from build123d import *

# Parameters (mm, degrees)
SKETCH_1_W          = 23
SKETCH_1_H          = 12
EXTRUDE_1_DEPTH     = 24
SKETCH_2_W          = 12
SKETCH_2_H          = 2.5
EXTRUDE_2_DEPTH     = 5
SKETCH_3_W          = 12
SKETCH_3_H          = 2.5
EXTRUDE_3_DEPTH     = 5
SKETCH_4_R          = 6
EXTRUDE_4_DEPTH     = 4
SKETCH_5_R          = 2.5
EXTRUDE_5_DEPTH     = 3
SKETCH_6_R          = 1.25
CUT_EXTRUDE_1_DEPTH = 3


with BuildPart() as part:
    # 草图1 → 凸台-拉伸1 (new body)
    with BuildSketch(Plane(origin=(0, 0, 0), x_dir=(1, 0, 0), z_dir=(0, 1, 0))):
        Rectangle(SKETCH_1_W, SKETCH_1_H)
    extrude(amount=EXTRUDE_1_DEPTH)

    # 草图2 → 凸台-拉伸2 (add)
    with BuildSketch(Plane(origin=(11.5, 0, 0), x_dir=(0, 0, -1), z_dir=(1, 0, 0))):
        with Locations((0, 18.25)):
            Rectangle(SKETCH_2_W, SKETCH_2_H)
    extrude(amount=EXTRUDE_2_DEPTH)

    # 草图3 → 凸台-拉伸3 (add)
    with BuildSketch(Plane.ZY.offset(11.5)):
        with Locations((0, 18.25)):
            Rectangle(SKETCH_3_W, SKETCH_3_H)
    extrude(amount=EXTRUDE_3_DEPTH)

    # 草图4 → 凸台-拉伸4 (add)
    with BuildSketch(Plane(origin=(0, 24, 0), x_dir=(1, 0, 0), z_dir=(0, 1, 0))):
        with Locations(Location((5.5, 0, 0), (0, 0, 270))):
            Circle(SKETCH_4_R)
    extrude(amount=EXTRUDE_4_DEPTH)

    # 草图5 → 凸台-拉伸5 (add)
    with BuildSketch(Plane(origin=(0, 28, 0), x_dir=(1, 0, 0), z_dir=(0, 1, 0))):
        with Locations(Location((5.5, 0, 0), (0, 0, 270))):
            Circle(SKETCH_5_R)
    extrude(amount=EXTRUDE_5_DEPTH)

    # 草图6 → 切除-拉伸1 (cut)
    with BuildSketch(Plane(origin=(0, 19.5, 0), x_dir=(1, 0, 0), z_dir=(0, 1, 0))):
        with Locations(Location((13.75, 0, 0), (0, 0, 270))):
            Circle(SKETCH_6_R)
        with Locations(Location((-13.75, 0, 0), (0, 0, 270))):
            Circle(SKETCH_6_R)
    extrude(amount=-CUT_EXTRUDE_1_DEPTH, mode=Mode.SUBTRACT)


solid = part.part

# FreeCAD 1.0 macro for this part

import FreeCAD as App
import Part
import Sketcher
Q = App.Units.Quantity


def add_polygon(sketch, points):
    """Adds a closed chain of lines whose ends are joined by coincident constraints."""
    first, n = sketch.GeometryCount, len(points)
    for a, b in zip(points, points[1:] + points[:1]):
        sketch.addGeometry(Part.LineSegment(App.Vector(*a, 0), App.Vector(*b, 0)), False)
    for i in range(n):
        sketch.addConstraint(Sketcher.Constraint("Coincident", first + i, 2, first + (i + 1) % n, 1))

doc = App.newDocument("Part")
body = doc.addObject("PartDesign::Body", "Body")

sketch1 = doc.addObject("Sketcher::SketchObject", "Sketch")
body.addObject(sketch1)
sketch1.AttachmentSupport = (doc.XZ_Plane, [""])
sketch1.MapMode = "FlatFace"
add_polygon(sketch1, [(-11.5, -6), (-11.5, 6), (11.5, 6), (11.5, -6)])
sketch1.addConstraint(Sketcher.Constraint("Vertical", 0))
sketch1.addConstraint(Sketcher.Constraint("Horizontal", 1))
sketch1.addConstraint(Sketcher.Constraint("Vertical", 2))
sketch1.addConstraint(Sketcher.Constraint("Horizontal", 3))
sketch1.addConstraint(Sketcher.Constraint("Symmetric", 0, 2, 2, 2, -1, 1))
sketch1.addConstraint(Sketcher.Constraint("DistanceX", 1, 1, 1, 2, Q("23 mm")))
sketch1.addConstraint(Sketcher.Constraint("DistanceY", 0, 1, 0, 2, Q("12 mm")))
pad1 = doc.addObject("PartDesign::Pad", "Pad")
body.addObject(pad1)
pad1.Profile = sketch1
pad1.Length = 24
pad1.Reversed = True

sketch2 = doc.addObject("Sketcher::SketchObject", "Sketch001")
body.addObject(sketch2)
sketch2.AttachmentSupport = (doc.YZ_Plane, [""])
sketch2.MapMode = "FlatFace"
sketch2.AttachmentOffset = App.Placement(App.Vector(0, 0, 11.5), App.Rotation())
add_polygon(sketch2, [(19.5, 6), (17, 6), (17, -6), (19.5, -6)])
sketch2.addConstraint(Sketcher.Constraint("Horizontal", 0))
sketch2.addConstraint(Sketcher.Constraint("Vertical", 1))
sketch2.addConstraint(Sketcher.Constraint("Horizontal", 2))
sketch2.addConstraint(Sketcher.Constraint("Vertical", 3))
sketch2.addConstraint(Sketcher.Constraint("DistanceY", 1, 2, 1, 1, Q("12 mm")))
sketch2.addConstraint(Sketcher.Constraint("DistanceX", 0, 2, 0, 1, Q("2.5 mm")))
sketch2.addConstraint(Sketcher.Constraint("DistanceX", -1, 1, 0, 2, Q("17 mm")))
sketch2.addConstraint(Sketcher.Constraint("DistanceY", -1, 1, 0, 2, Q("6 mm")))
pad2 = doc.addObject("PartDesign::Pad", "Pad001")
body.addObject(pad2)
pad2.Profile = sketch2
pad2.Length = 5

sketch3 = doc.addObject("Sketcher::SketchObject", "Sketch002")
body.addObject(sketch3)
sketch3.AttachmentSupport = (doc.YZ_Plane, [""])
sketch3.MapMode = "FlatFace"
sketch3.AttachmentOffset = App.Placement(App.Vector(0, 0, -11.5), App.Rotation())
add_polygon(sketch3, [(19.5, -6), (17, -6), (17, 6), (19.5, 6)])
sketch3.addConstraint(Sketcher.Constraint("Horizontal", 0))
sketch3.addConstraint(Sketcher.Constraint("Vertical", 1))
sketch3.addConstraint(Sketcher.Constraint("Horizontal", 2))
sketch3.addConstraint(Sketcher.Constraint("Vertical", 3))
sketch3.addConstraint(Sketcher.Constraint("DistanceY", 1, 1, 1, 2, Q("12 mm")))
sketch3.addConstraint(Sketcher.Constraint("DistanceX", 0, 2, 0, 1, Q("2.5 mm")))
sketch3.addConstraint(Sketcher.Constraint("DistanceX", -1, 1, 0, 2, Q("17 mm")))
sketch3.addConstraint(Sketcher.Constraint("DistanceY", 0, 2, -1, 1, Q("6 mm")))
pad3 = doc.addObject("PartDesign::Pad", "Pad002")
body.addObject(pad3)
pad3.Profile = sketch3
pad3.Length = 5
pad3.Reversed = True

sketch4 = doc.addObject("Sketcher::SketchObject", "Sketch003")
body.addObject(sketch4)
sketch4.AttachmentSupport = (doc.XZ_Plane, [""])
sketch4.MapMode = "FlatFace"
sketch4.AttachmentOffset = App.Placement(App.Vector(0, 0, -24), App.Rotation())
sketch4.addGeometry(Part.Circle(App.Vector(5.5, 0, 0), App.Vector(0, 0, 1), 6), False)
sketch4.addConstraint(Sketcher.Constraint("PointOnObject", 0, 3, -1))
sketch4.addConstraint(Sketcher.Constraint("Diameter", 0, Q("12 mm")))
sketch4.addConstraint(Sketcher.Constraint("DistanceX", -1, 1, 0, 3, Q("5.5 mm")))
pad4 = doc.addObject("PartDesign::Pad", "Pad003")
body.addObject(pad4)
pad4.Profile = sketch4
pad4.Length = 4
pad4.Reversed = True

sketch5 = doc.addObject("Sketcher::SketchObject", "Sketch004")
body.addObject(sketch5)
sketch5.AttachmentSupport = (doc.XZ_Plane, [""])
sketch5.MapMode = "FlatFace"
sketch5.AttachmentOffset = App.Placement(App.Vector(0, 0, -28), App.Rotation())
sketch5.addGeometry(Part.Circle(App.Vector(5.5, 0, 0), App.Vector(0, 0, 1), 2.5), False)
sketch5.addConstraint(Sketcher.Constraint("PointOnObject", 0, 3, -1))
sketch5.addConstraint(Sketcher.Constraint("Diameter", 0, Q("5 mm")))
sketch5.addConstraint(Sketcher.Constraint("DistanceX", -1, 1, 0, 3, Q("5.5 mm")))
pad5 = doc.addObject("PartDesign::Pad", "Pad004")
body.addObject(pad5)
pad5.Profile = sketch5
pad5.Length = 3
pad5.Reversed = True

sketch6 = doc.addObject("Sketcher::SketchObject", "Sketch005")
body.addObject(sketch6)
sketch6.AttachmentSupport = (doc.XZ_Plane, [""])
sketch6.MapMode = "FlatFace"
sketch6.AttachmentOffset = App.Placement(App.Vector(0, 0, -19.5), App.Rotation())
sketch6.addGeometry(Part.Circle(App.Vector(13.75, 0, 0), App.Vector(0, 0, 1), 1.25), False)
sketch6.addGeometry(Part.Circle(App.Vector(-13.75, 0, 0), App.Vector(0, 0, 1), 1.25), False)
sketch6.addConstraint(Sketcher.Constraint("Equal", 0, 1))
sketch6.addConstraint(Sketcher.Constraint("Symmetric", 0, 3, 1, 3, -1, 1))
sketch6.addConstraint(Sketcher.Constraint("PointOnObject", 0, 3, -1))
sketch6.addConstraint(Sketcher.Constraint("Diameter", 0, Q("2.5 mm")))
sketch6.addConstraint(Sketcher.Constraint("DistanceX", 1, 3, 0, 3, Q("27.5 mm")))
pocket1 = doc.addObject("PartDesign::Pocket", "Pocket")
body.addObject(pocket1)
pocket1.Profile = sketch6
pocket1.Length = 3
pocket1.Reversed = True

doc.recompute()
